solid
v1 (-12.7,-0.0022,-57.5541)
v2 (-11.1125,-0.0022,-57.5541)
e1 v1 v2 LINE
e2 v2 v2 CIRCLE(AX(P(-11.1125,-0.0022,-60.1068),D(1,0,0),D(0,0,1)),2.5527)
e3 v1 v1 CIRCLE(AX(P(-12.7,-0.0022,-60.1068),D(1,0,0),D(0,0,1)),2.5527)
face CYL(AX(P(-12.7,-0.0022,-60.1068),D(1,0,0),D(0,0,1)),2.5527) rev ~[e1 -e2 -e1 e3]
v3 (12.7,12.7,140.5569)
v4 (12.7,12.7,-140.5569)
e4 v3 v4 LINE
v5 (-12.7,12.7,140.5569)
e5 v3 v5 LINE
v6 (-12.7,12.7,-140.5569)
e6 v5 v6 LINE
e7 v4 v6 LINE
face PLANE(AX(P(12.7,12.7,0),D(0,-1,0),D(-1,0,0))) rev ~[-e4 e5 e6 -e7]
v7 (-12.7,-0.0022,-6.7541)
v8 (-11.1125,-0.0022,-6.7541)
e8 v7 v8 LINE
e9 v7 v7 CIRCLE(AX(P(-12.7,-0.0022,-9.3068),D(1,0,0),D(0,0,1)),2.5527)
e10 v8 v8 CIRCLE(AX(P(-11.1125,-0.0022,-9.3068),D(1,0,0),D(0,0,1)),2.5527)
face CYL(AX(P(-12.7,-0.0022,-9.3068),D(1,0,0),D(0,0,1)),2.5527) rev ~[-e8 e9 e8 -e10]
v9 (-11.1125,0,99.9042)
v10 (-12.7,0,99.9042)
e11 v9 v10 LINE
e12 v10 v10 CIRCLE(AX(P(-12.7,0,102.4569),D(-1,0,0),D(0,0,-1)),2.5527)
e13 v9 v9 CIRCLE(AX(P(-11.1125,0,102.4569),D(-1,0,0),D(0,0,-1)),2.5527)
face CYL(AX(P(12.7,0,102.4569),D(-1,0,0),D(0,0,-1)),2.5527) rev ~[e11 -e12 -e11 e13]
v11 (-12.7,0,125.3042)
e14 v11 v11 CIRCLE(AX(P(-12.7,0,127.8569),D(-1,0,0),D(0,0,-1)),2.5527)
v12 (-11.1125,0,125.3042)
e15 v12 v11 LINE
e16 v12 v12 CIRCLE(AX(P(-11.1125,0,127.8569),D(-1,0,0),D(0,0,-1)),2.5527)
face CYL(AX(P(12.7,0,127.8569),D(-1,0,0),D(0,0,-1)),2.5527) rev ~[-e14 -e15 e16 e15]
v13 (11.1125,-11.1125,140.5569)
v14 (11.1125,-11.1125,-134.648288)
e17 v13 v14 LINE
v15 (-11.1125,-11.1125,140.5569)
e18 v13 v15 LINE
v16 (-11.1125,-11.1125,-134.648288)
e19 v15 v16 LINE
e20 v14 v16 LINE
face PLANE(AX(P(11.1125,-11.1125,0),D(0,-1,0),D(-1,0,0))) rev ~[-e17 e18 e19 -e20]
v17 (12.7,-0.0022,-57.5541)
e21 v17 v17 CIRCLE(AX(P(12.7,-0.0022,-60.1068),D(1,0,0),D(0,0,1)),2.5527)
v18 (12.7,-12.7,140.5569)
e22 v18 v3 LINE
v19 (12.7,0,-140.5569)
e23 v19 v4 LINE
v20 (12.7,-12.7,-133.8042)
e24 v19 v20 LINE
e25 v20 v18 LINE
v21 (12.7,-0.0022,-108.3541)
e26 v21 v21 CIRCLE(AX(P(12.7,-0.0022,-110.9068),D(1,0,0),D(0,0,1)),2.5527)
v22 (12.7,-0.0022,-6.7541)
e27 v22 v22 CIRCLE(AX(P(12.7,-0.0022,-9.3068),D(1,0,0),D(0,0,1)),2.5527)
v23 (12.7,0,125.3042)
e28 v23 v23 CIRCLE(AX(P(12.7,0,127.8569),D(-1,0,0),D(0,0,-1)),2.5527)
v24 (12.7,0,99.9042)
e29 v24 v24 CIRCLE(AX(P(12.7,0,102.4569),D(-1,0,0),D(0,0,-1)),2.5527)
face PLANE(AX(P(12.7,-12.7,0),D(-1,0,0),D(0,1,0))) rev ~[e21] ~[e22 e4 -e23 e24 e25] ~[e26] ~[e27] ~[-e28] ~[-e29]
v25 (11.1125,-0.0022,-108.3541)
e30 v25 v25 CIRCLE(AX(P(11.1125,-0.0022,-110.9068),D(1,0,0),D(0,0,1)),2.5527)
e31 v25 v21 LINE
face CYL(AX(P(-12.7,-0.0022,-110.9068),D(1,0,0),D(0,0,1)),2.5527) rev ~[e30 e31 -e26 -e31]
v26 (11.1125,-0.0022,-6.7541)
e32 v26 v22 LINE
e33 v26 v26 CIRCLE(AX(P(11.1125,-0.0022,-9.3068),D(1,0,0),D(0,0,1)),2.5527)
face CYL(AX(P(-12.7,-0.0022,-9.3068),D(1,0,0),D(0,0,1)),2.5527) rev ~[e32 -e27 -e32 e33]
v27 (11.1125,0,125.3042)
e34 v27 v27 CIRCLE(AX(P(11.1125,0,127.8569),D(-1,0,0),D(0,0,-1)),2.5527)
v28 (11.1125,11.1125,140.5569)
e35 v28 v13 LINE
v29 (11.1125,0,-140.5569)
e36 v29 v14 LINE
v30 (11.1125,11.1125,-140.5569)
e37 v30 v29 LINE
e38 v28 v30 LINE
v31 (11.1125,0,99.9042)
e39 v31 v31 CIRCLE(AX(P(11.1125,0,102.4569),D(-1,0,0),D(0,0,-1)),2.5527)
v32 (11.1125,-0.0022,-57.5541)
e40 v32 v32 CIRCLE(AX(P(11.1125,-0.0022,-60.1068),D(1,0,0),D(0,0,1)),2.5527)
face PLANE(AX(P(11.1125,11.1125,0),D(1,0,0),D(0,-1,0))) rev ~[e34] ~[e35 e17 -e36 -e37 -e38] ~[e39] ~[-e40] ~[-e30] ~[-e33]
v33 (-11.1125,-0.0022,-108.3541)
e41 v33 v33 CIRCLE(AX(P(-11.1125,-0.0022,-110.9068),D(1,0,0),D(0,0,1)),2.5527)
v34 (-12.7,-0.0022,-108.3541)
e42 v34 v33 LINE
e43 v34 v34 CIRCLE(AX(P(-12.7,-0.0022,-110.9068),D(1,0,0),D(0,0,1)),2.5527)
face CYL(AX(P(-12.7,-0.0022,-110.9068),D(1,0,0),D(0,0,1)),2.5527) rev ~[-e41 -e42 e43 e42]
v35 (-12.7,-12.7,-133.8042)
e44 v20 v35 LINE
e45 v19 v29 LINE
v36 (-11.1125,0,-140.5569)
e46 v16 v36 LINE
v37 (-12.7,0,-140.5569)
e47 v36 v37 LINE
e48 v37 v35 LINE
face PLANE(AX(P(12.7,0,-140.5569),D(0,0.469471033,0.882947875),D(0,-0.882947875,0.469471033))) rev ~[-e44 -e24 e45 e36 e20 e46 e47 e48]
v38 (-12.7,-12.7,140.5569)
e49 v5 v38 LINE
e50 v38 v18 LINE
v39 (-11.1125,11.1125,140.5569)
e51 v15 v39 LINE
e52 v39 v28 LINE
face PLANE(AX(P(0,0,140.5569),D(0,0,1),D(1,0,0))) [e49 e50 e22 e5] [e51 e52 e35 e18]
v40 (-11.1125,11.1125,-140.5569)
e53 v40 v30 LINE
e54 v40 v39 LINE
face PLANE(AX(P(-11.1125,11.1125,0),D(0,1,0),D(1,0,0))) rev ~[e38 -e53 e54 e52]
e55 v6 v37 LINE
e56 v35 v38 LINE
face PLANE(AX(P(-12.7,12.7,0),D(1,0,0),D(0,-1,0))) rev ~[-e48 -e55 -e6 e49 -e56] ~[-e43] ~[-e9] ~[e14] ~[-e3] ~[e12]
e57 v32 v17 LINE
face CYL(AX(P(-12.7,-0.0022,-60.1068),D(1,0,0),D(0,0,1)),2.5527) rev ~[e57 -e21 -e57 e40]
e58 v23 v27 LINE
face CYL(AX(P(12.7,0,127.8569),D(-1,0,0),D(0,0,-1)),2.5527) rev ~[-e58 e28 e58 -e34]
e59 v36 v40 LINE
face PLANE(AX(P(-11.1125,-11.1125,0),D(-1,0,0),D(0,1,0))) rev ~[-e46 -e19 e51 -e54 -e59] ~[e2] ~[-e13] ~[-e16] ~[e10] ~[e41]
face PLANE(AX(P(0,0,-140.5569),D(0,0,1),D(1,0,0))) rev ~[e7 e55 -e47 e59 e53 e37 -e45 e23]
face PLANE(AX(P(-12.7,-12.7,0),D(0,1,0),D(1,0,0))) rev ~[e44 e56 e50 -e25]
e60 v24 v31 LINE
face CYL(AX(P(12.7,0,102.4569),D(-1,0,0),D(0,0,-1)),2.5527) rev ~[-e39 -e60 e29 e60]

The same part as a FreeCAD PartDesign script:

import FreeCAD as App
import Part
import Sketcher
from FreeCAD import Vector
Q = App.Units.Quantity

doc = App.newDocument("Part")
body = doc.addObject("PartDesign::Body", "Body")

sketch1 = body.newObject("Sketcher::SketchObject", "Sketch")
sketch1.AttachmentSupport = (doc.getObject("XY_Plane"), [""])
sketch1.MapMode = "FlatFace"
sketch1.addGeometry([
    Part.LineSegment(Vector(-12.7, 12.7, 0), Vector(-12.7, -12.7, 0)),
    Part.LineSegment(Vector(-12.7, -12.7, 0), Vector(12.7, -12.7, 0)),
    Part.LineSegment(Vector(12.7, -12.7, 0), Vector(12.7, 12.7, 0)),
    Part.LineSegment(Vector(12.7, 12.7, 0), Vector(-12.7, 12.7, 0)),
    Part.LineSegment(Vector(-11.1125, -11.1125, 0), Vector(-11.1125, 11.1125, 0)),
    Part.LineSegment(Vector(-11.1125, 11.1125, 0), Vector(11.1125, 11.1125, 0)),
    Part.LineSegment(Vector(11.1125, 11.1125, 0), Vector(11.1125, -11.1125, 0)),
    Part.LineSegment(Vector(11.1125, -11.1125, 0), Vector(-11.1125, -11.1125, 0)),
], False)
sketch1.addConstraint([
    Sketcher.Constraint("Coincident", 0, 2, 1, 1),
    Sketcher.Constraint("Coincident", 1, 2, 2, 1),
    Sketcher.Constraint("Coincident", 2, 2, 3, 1),
    Sketcher.Constraint("Coincident", 3, 2, 0, 1),
    Sketcher.Constraint("Coincident", 4, 2, 5, 1),
    Sketcher.Constraint("Coincident", 5, 2, 6, 1),
    Sketcher.Constraint("Coincident", 6, 2, 7, 1),
    Sketcher.Constraint("Coincident", 7, 2, 4, 1),
    Sketcher.Constraint("Vertical", 0),
    Sketcher.Constraint("Horizontal", 1),
    Sketcher.Constraint("Vertical", 2),
    Sketcher.Constraint("Horizontal", 3),
    Sketcher.Constraint("Vertical", 4),
    Sketcher.Constraint("Horizontal", 5),
    Sketcher.Constraint("Vertical", 6),
    Sketcher.Constraint("Horizontal", 7),
    Sketcher.Constraint("Symmetric", 0, 2, 2, 2, -1, 1),
    Sketcher.Constraint("Symmetric", 4, 2, 6, 2, -1, 1),
    Sketcher.Constraint("Equal", 3, 0),
    Sketcher.Constraint("Equal", 7, 4),
    Sketcher.Constraint("DistanceX", 1, 1, 1, 2, Q("1 in")),
    Sketcher.Constraint("DistanceX", 3, 2, 4, 2, Q("0.0625 in")),
])
pad1 = body.newObject("PartDesign::Pad", "Pad")
pad1.Profile = sketch1
pad1.Length = 281.1138
pad1.Midplane = True

sketch2 = body.newObject("Sketcher::SketchObject", "Sketch001")
sketch2.AttachmentSupport = (doc.getObject("YZ_Plane"), [""])
sketch2.MapMode = "FlatFace"
sketch2.AttachmentOffset = App.Placement(Vector(0, 0, 0.5 * 25.4), App.Rotation())
sketch2.addGeometry([
    Part.Circle(Vector(0, 127.8569, 0), Vector(0, 0, 1), 2.5527),
    Part.Circle(Vector(0, 102.4569, 0), Vector(0, 0, 1), 2.5527),
], False)
sketch2.addConstraint([
    Sketcher.Constraint("Equal", 0, 1),
    Sketcher.Constraint("PointOnObject", 0, 3, -2),
    Sketcher.Constraint("PointOnObject", 1, 3, -2),
    Sketcher.Constraint("Diameter", 0, Q("0.201 in")),
    Sketcher.Constraint("DistanceY", 1, 3, 0, 3, Q("1 in")),
    Sketcher.Constraint("DistanceY", -1, 1, 0, 3, 127.857),
])
doc.recompute()
hole = body.newObject("PartDesign::Hole", "Hole")
hole.Profile = sketch2
hole.ThreadType = "None"
hole.Diameter = Q("0.201 in")
hole.DepthType = "ThroughAll"

sketch3 = body.newObject("Sketcher::SketchObject", "Sketch002")
sketch3.AttachmentSupport = (doc.getObject("YZ_Plane"), [""])
sketch3.MapMode = "FlatFace"
sketch3.AttachmentOffset = App.Placement(Vector(0, 0, 0.5 * 25.4), App.Rotation())
sketch3.addGeometry([
    Part.LineSegment(Vector(0, -140.5569, 0), Vector(-12.7, -133.8042, 0)),
    Part.LineSegment(Vector(-12.7, -133.8042, 0), Vector(-12.7, -140.5569, 0)),
    Part.LineSegment(Vector(-12.7, -140.5569, 0), Vector(0, -140.5569, 0)),
], False)
sketch3.addConstraint([
    Sketcher.Constraint("Coincident", 0, 2, 1, 1),
    Sketcher.Constraint("Coincident", 1, 2, 2, 1),
    Sketcher.Constraint("Coincident", 2, 2, 0, 1),
    Sketcher.Constraint("Vertical", 1),
    Sketcher.Constraint("Horizontal", 2),
    Sketcher.Constraint("PointOnObject", 2, 2, -2),
    Sketcher.Constraint("DistanceX", 2, 1, 2, 2, Q("0.5 in")),
    Sketcher.Constraint("Angle", 0, Q("152 deg")),
    Sketcher.Constraint("DistanceY", 0, 2, -1, 1, 133.8042),
])
pocket1 = body.newObject("PartDesign::Pocket", "Pocket")
pocket1.Profile = sketch3
pocket1.Type = "ThroughAll"

sketch4 = body.newObject("Sketcher::SketchObject", "Sketch003")
sketch4.AttachmentSupport = (doc.getObject("YZ_Plane"), [""])
sketch4.MapMode = "FlatFace"
sketch4.AttachmentOffset = App.Placement(Vector(0, 0, -0.5 * 25.4), App.Rotation())
sketch4.addGeometry([
    Part.Circle(Vector(-0.0022, -110.9068, 0), Vector(0, 0, 1), 2.5527),
    Part.Circle(Vector(-0.0022, -60.1068, 0), Vector(0, 0, 1), 2.5527),
    Part.Circle(Vector(-0.0022, -9.3068, 0), Vector(0, 0, 1), 2.5527),
], False)
sketch4.addConstraint([
    Sketcher.Constraint("Equal", 0, 1),
    Sketcher.Constraint("Equal", 1, 2),
    Sketcher.Constraint("Vertical", 0, 3, 1, 3),
    Sketcher.Constraint("Vertical", 1, 3, 2, 3),
    Sketcher.Constraint("Diameter", 0, Q("0.201 in")),
    Sketcher.Constraint("DistanceY", 0, 3, 1, 3, Q("2 in")),
    Sketcher.Constraint("DistanceY", 1, 3, 2, 3, Q("2 in")),
    Sketcher.Constraint("DistanceY", 0, 3, -1, 1, Q("4.3664 in")),
    Sketcher.Constraint("DistanceX", 0, 3, -1, 1, 0.0022),
])
doc.recompute()
hole2 = body.newObject("PartDesign::Hole", "Hole001")
hole2.Profile = sketch4
hole2.ThreadType = "None"
hole2.Diameter = Q("0.201 in")
hole2.DepthType = "ThroughAll"
hole2.Reversed = True

doc.recompute()
